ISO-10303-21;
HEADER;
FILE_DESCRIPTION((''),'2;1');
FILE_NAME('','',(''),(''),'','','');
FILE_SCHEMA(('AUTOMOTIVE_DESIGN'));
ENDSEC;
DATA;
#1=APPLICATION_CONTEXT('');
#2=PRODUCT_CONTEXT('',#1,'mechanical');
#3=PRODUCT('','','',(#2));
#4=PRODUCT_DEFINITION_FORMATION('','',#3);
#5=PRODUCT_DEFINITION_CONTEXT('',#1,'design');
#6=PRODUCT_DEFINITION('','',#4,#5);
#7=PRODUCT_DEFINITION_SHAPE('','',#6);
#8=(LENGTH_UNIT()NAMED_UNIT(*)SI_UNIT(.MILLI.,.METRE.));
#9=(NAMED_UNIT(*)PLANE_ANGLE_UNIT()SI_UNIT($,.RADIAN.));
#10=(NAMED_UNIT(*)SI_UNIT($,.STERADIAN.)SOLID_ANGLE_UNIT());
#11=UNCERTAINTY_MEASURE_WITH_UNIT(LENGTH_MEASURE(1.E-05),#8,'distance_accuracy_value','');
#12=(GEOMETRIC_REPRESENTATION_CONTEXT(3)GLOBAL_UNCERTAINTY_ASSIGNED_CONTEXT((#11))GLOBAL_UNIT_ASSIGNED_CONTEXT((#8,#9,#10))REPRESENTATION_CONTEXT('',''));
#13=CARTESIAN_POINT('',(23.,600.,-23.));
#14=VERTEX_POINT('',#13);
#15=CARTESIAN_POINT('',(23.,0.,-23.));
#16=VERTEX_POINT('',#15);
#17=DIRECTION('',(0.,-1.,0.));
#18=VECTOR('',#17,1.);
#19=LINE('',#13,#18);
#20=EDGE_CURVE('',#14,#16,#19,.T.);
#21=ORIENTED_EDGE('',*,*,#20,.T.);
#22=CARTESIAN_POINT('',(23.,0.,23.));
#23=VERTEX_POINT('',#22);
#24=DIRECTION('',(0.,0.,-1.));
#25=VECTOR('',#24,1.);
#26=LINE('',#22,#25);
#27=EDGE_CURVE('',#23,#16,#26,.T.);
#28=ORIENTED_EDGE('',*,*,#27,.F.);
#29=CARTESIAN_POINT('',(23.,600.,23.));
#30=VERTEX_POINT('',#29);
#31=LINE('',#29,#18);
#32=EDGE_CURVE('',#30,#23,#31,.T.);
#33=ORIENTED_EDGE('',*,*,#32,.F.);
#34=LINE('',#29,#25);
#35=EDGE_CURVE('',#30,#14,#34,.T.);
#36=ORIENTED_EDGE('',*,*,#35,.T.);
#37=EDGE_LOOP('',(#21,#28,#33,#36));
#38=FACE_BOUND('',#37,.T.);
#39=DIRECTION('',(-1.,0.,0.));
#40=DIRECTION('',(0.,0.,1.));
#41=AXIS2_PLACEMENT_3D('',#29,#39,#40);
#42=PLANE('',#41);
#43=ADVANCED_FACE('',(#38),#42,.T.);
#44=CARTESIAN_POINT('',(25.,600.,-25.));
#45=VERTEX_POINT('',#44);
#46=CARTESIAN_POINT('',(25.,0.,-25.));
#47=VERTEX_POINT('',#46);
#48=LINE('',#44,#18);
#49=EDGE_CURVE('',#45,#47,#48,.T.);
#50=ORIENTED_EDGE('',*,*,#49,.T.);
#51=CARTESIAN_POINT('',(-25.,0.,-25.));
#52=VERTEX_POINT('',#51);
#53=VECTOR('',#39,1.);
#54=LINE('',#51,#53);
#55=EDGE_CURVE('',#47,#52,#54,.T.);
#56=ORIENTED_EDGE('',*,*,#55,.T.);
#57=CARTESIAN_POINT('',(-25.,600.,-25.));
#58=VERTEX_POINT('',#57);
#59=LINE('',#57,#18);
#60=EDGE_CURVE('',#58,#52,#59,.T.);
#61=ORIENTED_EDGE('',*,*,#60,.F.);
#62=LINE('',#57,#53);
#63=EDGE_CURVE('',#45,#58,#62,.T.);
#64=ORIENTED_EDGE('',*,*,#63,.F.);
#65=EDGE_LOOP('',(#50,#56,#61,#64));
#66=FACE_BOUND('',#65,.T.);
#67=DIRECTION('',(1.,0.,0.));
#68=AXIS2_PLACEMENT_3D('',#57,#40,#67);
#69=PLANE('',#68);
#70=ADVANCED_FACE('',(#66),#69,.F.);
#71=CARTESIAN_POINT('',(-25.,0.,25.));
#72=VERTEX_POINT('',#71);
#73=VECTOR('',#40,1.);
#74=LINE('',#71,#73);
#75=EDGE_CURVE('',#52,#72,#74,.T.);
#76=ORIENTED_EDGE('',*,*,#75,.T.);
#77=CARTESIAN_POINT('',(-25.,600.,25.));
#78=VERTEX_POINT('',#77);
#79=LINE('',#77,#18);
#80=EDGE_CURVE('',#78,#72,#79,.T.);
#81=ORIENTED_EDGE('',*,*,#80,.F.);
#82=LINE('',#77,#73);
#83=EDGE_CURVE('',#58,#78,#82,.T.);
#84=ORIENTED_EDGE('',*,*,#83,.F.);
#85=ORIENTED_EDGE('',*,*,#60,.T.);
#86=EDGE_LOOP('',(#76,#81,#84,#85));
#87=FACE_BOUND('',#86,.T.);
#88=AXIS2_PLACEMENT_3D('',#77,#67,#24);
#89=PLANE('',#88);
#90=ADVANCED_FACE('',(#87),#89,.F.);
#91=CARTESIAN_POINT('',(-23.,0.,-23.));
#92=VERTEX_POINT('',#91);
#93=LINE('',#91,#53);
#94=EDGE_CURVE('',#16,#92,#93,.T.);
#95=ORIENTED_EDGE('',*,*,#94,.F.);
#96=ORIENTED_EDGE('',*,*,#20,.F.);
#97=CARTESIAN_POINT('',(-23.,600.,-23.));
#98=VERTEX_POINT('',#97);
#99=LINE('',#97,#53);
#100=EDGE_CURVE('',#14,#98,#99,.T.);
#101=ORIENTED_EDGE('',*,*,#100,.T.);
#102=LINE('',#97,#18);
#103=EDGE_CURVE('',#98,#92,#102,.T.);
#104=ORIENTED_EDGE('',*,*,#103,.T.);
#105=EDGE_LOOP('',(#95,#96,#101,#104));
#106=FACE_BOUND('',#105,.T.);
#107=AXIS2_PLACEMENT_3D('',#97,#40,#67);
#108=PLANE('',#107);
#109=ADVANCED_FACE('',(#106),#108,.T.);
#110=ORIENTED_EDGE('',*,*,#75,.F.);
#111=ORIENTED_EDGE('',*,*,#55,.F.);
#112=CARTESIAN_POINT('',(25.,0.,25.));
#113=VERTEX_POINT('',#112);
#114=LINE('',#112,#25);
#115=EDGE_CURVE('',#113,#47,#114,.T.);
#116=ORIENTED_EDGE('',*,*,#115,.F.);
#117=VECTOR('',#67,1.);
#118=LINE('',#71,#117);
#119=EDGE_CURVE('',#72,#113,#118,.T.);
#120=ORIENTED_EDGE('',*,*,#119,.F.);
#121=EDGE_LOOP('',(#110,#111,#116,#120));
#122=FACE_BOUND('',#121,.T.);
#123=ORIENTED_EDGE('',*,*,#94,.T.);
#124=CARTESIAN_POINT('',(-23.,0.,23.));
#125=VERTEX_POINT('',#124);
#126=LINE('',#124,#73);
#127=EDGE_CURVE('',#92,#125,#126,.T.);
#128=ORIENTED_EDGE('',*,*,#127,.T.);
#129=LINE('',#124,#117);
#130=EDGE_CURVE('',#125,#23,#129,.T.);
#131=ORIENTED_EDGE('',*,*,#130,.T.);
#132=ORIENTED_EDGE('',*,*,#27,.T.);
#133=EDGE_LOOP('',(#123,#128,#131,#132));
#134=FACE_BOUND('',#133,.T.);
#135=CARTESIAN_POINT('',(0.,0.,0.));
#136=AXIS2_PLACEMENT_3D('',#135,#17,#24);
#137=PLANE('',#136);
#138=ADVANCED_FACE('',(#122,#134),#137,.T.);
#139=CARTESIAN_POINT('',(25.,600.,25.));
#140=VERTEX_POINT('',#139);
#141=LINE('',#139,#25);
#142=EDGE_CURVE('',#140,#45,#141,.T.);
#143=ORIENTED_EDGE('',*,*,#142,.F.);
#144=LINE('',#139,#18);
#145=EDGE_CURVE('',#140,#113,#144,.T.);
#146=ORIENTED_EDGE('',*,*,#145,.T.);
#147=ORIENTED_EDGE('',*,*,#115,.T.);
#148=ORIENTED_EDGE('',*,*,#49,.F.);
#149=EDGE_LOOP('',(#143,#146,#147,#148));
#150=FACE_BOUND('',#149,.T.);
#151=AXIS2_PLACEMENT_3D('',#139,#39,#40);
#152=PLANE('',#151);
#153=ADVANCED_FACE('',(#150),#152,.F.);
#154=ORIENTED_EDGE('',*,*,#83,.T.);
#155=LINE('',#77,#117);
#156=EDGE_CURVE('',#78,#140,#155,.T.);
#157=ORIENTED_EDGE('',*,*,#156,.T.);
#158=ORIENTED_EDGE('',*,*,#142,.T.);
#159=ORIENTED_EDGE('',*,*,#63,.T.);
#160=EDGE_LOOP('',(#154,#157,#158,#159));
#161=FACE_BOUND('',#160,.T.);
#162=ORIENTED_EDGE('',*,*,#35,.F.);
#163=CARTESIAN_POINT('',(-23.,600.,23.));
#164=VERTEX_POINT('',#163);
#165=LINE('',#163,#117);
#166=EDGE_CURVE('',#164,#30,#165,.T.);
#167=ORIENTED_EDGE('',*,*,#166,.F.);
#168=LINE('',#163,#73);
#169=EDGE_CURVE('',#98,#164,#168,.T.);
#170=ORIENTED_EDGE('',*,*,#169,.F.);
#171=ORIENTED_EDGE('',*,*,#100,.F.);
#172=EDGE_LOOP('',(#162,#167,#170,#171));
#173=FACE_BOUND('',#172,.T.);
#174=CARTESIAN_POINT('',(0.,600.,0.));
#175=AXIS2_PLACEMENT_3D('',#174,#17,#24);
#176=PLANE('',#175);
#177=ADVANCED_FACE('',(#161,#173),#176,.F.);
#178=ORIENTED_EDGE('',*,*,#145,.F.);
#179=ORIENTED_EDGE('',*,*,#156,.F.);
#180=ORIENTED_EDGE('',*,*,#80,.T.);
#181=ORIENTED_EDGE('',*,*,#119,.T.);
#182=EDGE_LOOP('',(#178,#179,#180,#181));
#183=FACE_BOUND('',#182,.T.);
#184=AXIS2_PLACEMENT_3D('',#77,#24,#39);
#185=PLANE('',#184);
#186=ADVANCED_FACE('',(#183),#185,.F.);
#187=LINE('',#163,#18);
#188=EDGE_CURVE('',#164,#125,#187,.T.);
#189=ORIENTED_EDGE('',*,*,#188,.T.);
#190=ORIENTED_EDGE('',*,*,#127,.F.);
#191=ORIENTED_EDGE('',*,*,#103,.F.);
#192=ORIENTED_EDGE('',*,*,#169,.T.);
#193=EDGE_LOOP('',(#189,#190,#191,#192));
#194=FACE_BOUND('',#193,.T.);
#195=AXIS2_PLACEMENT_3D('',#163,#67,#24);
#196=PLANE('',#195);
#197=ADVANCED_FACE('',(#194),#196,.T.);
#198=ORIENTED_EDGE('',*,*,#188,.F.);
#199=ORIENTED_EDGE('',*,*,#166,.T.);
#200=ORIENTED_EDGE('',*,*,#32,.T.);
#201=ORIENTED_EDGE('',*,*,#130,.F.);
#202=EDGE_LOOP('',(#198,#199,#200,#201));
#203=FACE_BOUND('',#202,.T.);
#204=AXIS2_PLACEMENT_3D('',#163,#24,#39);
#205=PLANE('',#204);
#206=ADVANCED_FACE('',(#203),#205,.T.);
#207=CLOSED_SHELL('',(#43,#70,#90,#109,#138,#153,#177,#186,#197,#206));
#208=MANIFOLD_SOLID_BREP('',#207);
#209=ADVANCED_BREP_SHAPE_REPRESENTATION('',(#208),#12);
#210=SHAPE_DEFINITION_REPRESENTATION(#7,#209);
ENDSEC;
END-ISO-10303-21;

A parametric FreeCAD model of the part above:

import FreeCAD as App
import Part
import Sketcher

V = App.Vector
Q = App.Units.Quantity

doc = App.newDocument("Part")
body = doc.addObject("PartDesign::Body", "Body")

# Sketch on XZ plane
sketch1 = body.newObject("Sketcher::SketchObject", "Sketch")
sketch1.AttachmentSupport = (doc.getObject("XZ_Plane"), [""])
sketch1.MapMode = "FlatFace"
sketch1.addGeometry([
    Part.LineSegment(V(-25, -25, 0), V(-25, 25, 0)),  # 0
    Part.LineSegment(V(-25, 25, 0), V(25, 25, 0)),  # 1
    Part.LineSegment(V(25, 25, 0), V(25, -25, 0)),  # 2
    Part.LineSegment(V(25, -25, 0), V(-25, -25, 0)),  # 3
    Part.LineSegment(V(23, 23, 0), V(-23, 23, 0)),  # 4
    Part.LineSegment(V(-23, 23, 0), V(-23, -23, 0)),  # 5
    Part.LineSegment(V(-23, -23, 0), V(23, -23, 0)),  # 6
    Part.LineSegment(V(23, -23, 0), V(23, 23, 0)),  # 7
], False)
sketch1.addConstraint([
    Sketcher.Constraint("Coincident", 0, 2, 1, 1),
    Sketcher.Constraint("Coincident", 1, 2, 2, 1),
    Sketcher.Constraint("Coincident", 2, 2, 3, 1),
    Sketcher.Constraint("Coincident", 3, 2, 0, 1),
    Sketcher.Constraint("Coincident", 4, 2, 5, 1),
    Sketcher.Constraint("Coincident", 5, 2, 6, 1),
    Sketcher.Constraint("Coincident", 6, 2, 7, 1),
    Sketcher.Constraint("Coincident", 7, 2, 4, 1),
    Sketcher.Constraint("Vertical", 0),
    Sketcher.Constraint("Horizontal", 1),
    Sketcher.Constraint("Vertical", 2),
    Sketcher.Constraint("Horizontal", 3),
    Sketcher.Constraint("Horizontal", 4),
    Sketcher.Constraint("Vertical", 5),
    Sketcher.Constraint("Horizontal", 6),
    Sketcher.Constraint("Vertical", 7),
    Sketcher.Constraint("Symmetric", 0, 2, 2, 2, -1, 1),
    Sketcher.Constraint("Symmetric", 4, 2, 6, 2, -1, 1),
    Sketcher.Constraint("Equal", 3, 0),
    Sketcher.Constraint("Equal", 6, 5),
    Sketcher.Constraint("DistanceX", 1, 1, 1, 2, Q("50 mm")),
    Sketcher.Constraint("DistanceX", 4, 2, 4, 1, Q("46 mm")),
])
pad1 = body.newObject("PartDesign::Pad", "Pad")
pad1.Profile = sketch1
pad1.Length = 600
pad1.Reversed = True

doc.recompute()
